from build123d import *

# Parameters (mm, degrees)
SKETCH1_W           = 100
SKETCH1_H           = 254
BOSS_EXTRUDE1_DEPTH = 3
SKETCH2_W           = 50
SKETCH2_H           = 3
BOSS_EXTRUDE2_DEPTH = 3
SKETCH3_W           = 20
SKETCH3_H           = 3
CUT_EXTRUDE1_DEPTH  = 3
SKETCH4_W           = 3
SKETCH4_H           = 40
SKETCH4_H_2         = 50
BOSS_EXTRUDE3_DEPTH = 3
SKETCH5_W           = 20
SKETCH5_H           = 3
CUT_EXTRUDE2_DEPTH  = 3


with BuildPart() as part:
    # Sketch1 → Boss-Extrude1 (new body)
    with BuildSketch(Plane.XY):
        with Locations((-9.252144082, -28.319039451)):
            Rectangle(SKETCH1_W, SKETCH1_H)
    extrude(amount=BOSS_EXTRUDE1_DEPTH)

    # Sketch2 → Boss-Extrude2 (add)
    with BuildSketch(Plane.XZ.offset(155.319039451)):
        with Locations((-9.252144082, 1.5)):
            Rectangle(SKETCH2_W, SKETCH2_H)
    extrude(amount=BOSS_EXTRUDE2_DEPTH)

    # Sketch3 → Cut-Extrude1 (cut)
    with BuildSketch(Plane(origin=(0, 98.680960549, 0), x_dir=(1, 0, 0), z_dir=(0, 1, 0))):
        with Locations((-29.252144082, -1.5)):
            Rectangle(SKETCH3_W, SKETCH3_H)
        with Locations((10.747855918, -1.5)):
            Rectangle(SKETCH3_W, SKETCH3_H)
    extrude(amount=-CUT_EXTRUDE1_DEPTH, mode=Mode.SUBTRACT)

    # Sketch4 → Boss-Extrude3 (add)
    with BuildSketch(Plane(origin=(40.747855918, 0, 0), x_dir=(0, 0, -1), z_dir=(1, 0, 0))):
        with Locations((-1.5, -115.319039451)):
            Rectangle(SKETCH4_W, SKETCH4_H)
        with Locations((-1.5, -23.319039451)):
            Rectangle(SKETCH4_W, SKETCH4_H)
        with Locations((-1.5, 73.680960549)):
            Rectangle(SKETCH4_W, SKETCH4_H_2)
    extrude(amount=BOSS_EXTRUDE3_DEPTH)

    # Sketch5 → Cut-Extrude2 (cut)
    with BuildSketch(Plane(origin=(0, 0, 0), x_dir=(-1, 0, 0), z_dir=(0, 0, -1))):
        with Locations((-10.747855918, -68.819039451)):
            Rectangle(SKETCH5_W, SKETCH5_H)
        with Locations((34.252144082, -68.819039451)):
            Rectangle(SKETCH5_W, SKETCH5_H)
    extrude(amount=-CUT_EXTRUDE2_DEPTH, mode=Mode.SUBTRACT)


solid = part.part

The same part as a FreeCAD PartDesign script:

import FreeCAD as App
import Part
import Sketcher
from FreeCAD import Vector

doc = App.newDocument("Part")
body = doc.addObject("PartDesign::Body", "Body")

# Sketch on XY plane
sketch1 = body.newObject("Sketcher::SketchObject", "Sketch")
sketch1.AttachmentSupport = (doc.getObject("XY_Plane"), [""])
sketch1.MapMode = "FlatFace"
sketch1.addGeometry(Part.LineSegment(Vector(-59.252144, 98.680961, 0), Vector(-59.252144, -155.319039, 0)), False)
sketch1.addGeometry(Part.LineSegment(Vector(-59.252144, -155.319039, 0), Vector(40.747856, -155.319039, 0)), False)
sketch1.addGeometry(Part.LineSegment(Vector(40.747856, -155.319039, 0), Vector(40.747856, 98.680961, 0)), False)
sketch1.addGeometry(Part.LineSegment(Vector(40.747856, 98.680961, 0), Vector(-59.252144, 98.680961, 0)), False)
sketch1.addConstraint(Sketcher.Constraint("Coincident", 0, 2, 1, 1))
sketch1.addConstraint(Sketcher.Constraint("Coincident", 1, 2, 2, 1))
sketch1.addConstraint(Sketcher.Constraint("Coincident", 2, 2, 3, 1))
sketch1.addConstraint(Sketcher.Constraint("Coincident", 3, 2, 0, 1))
sketch1.addConstraint(Sketcher.Constraint("Vertical", 0))
sketch1.addConstraint(Sketcher.Constraint("Horizontal", 1))
sketch1.addConstraint(Sketcher.Constraint("Vertical", 2))
sketch1.addConstraint(Sketcher.Constraint("Horizontal", 3))
sketch1.addConstraint(Sketcher.Constraint("DistanceX", 1, 1, 1, 2, 100.0))
sketch1.addConstraint(Sketcher.Constraint("DistanceY", 0, 2, 0, 1, 254.0))
sketch1.addConstraint(Sketcher.Constraint("DistanceY", 0, 2, -1, 1, 155.319039))
sketch1.addConstraint(Sketcher.Constraint("DistanceX", 0, 2, -1, 1, 59.252144))
pad1 = body.newObject("PartDesign::Pad", "Pad")
pad1.Profile = sketch1
pad1.Length = 3

# Sketch on XZ plane
sketch2 = body.newObject("Sketcher::SketchObject", "Sketch001")
sketch2.AttachmentSupport = (doc.getObject("XZ_Plane"), [""])
sketch2.MapMode = "FlatFace"
sketch2.AttachmentOffset = App.Placement(Vector(0, 0, 155.319039), App.Rotation())
sketch2.addGeometry(Part.LineSegment(Vector(-34.252144, 3, 0), Vector(-34.252144, 0, 0)), False)
sketch2.addGeometry(Part.LineSegment(Vector(-34.252144, 0, 0), Vector(15.747856, 0, 0)), False)
sketch2.addGeometry(Part.LineSegment(Vector(15.747856, 0, 0), Vector(15.747856, 3, 0)), False)
sketch2.addGeometry(Part.LineSegment(Vector(15.747856, 3, 0), Vector(-34.252144, 3, 0)), False)
sketch2.addConstraint(Sketcher.Constraint("Coincident", 0, 2, 1, 1))
sketch2.addConstraint(Sketcher.Constraint("Coincident", 1, 2, 2, 1))
sketch2.addConstraint(Sketcher.Constraint("Coincident", 2, 2, 3, 1))
sketch2.addConstraint(Sketcher.Constraint("Coincident", 3, 2, 0, 1))
sketch2.addConstraint(Sketcher.Constraint("Vertical", 0))
sketch2.addConstraint(Sketcher.Constraint("Horizontal", 1))
sketch2.addConstraint(Sketcher.Constraint("Vertical", 2))
sketch2.addConstraint(Sketcher.Constraint("Horizontal", 3))
sketch2.addConstraint(Sketcher.Constraint("PointOnObject", 0, 2, -1))
sketch2.addConstraint(Sketcher.Constraint("DistanceX", 1, 1, 1, 2, 50.0))
sketch2.addConstraint(Sketcher.Constraint("DistanceY", 0, 2, 0, 1, 3.0))
sketch2.addConstraint(Sketcher.Constraint("DistanceX", 0, 2, -1, 1, 34.252144))
pad2 = body.newObject("PartDesign::Pad", "Pad001")
pad2.Profile = sketch2
pad2.Length = 3

# Sketch on XZ plane
sketch3 = body.newObject("Sketcher::SketchObject", "Sketch002")
sketch3.AttachmentSupport = (doc.getObject("XZ_Plane"), [""])
sketch3.MapMode = "FlatFace"
sketch3.AttachmentOffset = App.Placement(Vector(0, 0, -98.680961), App.Rotation())
sketch3.addGeometry(Part.LineSegment(Vector(-39.252144, 0, 0), Vector(-39.252144, 3, 0)), False)
sketch3.addGeometry(Part.LineSegment(Vector(-39.252144, 3, 0), Vector(-19.252144, 3, 0)), False)
sketch3.addGeometry(Part.LineSegment(Vector(-19.252144, 3, 0), Vector(-19.252144, 0, 0)), False)
sketch3.addGeometry(Part.LineSegment(Vector(-19.252144, 0, 0), Vector(-39.252144, 0, 0)), False)
sketch3.addGeometry(Part.LineSegment(Vector(0.747856, 0, 0), Vector(0.747856, 3, 0)), False)
sketch3.addGeometry(Part.LineSegment(Vector(0.747856, 3, 0), Vector(20.747856, 3, 0)), False)
sketch3.addGeometry(Part.LineSegment(Vector(20.747856, 3, 0), Vector(20.747856, 0, 0)), False)
sketch3.addGeometry(Part.LineSegment(Vector(20.747856, 0, 0), Vector(0.747856, 0, 0)), False)
sketch3.addConstraint(Sketcher.Constraint("Coincident", 0, 2, 1, 1))
sketch3.addConstraint(Sketcher.Constraint("Coincident", 1, 2, 2, 1))
sketch3.addConstraint(Sketcher.Constraint("Coincident", 2, 2, 3, 1))
sketch3.addConstraint(Sketcher.Constraint("Coincident", 3, 2, 0, 1))
sketch3.addConstraint(Sketcher.Constraint("Coincident", 4, 2, 5, 1))
sketch3.addConstraint(Sketcher.Constraint("Coincident", 5, 2, 6, 1))
sketch3.addConstraint(Sketcher.Constraint("Coincident", 6, 2, 7, 1))
sketch3.addConstraint(Sketcher.Constraint("Coincident", 7, 2, 4, 1))
sketch3.addConstraint(Sketcher.Constraint("Vertical", 0))
sketch3.addConstraint(Sketcher.Constraint("Horizontal", 1))
sketch3.addConstraint(Sketcher.Constraint("Vertical", 2))
sketch3.addConstraint(Sketcher.Constraint("Horizontal", 3))
sketch3.addConstraint(Sketcher.Constraint("Vertical", 4))
sketch3.addConstraint(Sketcher.Constraint("Horizontal", 5))
sketch3.addConstraint(Sketcher.Constraint("Vertical", 6))
sketch3.addConstraint(Sketcher.Constraint("Horizontal", 7))
sketch3.addConstraint(Sketcher.Constraint("PointOnObject", 2, 2, -1))
sketch3.addConstraint(Sketcher.Constraint("PointOnObject", 6, 2, -1))
sketch3.addConstraint(Sketcher.Constraint("Horizontal", 1, 2, 4, 2))
sketch3.addConstraint(Sketcher.Constraint("Equal", 3, 5))
sketch3.addConstraint(Sketcher.Constraint("DistanceX", 1, 1, 1, 2, 20.0))
sketch3.addConstraint(Sketcher.Constraint("DistanceY", 0, 1, 0, 2, 3.0))
sketch3.addConstraint(Sketcher.Constraint("DistanceX", 1, 2, 4, 2, 20.0))
sketch3.addConstraint(Sketcher.Constraint("DistanceX", 0, 2, -1, 1, 39.252144))
pocket1 = body.newObject("PartDesign::Pocket", "Pocket")
pocket1.Profile = sketch3
pocket1.Length = 3
pocket1.Reversed = True

# Sketch on YZ plane
sketch4 = body.newObject("Sketcher::SketchObject", "Sketch003")
sketch4.AttachmentSupport = (doc.getObject("YZ_Plane"), [""])
sketch4.MapMode = "FlatFace"
sketch4.AttachmentOffset = App.Placement(Vector(0, 0, 40.747856), App.Rotation())
sketch4.addGeometry(Part.LineSegment(Vector(-95.319039, 3, 0), Vector(-135.319039, 3, 0)), False)
sketch4.addGeometry(Part.LineSegment(Vector(-135.319039, 3, 0), Vector(-135.319039, 0, 0)), False)
sketch4.addGeometry(Part.LineSegment(Vector(-135.319039, 0, 0), Vector(-95.319039, 0, 0)), False)
sketch4.addGeometry(Part.LineSegment(Vector(-95.319039, 0, 0), Vector(-95.319039, 3, 0)), False)
sketch4.addGeometry(Part.LineSegment(Vector(-3.319039, 3, 0), Vector(-43.319039, 3, 0)), False)
sketch4.addGeometry(Part.LineSegment(Vector(-43.319039, 3, 0), Vector(-43.319039, 0, 0)), False)
sketch4.addGeometry(Part.LineSegment(Vector(-43.319039, 0, 0), Vector(-3.319039, 0, 0)), False)
sketch4.addGeometry(Part.LineSegment(Vector(-3.319039, 0, 0), Vector(-3.319039, 3, 0)), False)
sketch4.addGeometry(Part.LineSegment(Vector(98.680961, 3, 0), Vector(48.680961, 3, 0)), False)
sketch4.addGeometry(Part.LineSegment(Vector(48.680961, 3, 0), Vector(48.680961, 0, 0)), False)
sketch4.addGeometry(Part.LineSegment(Vector(48.680961, 0, 0), Vector(98.680961, 0, 0)), False)
sketch4.addGeometry(Part.LineSegment(Vector(98.680961, 0, 0), Vector(98.680961, 3, 0)), False)
sketch4.addConstraint(Sketcher.Constraint("Coincident", 0, 2, 1, 1))
sketch4.addConstraint(Sketcher.Constraint("Coincident", 1, 2, 2, 1))
sketch4.addConstraint(Sketcher.Constraint("Coincident", 2, 2, 3, 1))
sketch4.addConstraint(Sketcher.Constraint("Coincident", 3, 2, 0, 1))
sketch4.addConstraint(Sketcher.Constraint("Coincident", 4, 2, 5, 1))
sketch4.addConstraint(Sketcher.Constraint("Coincident", 5, 2, 6, 1))
sketch4.addConstraint(Sketcher.Constraint("Coincident", 6, 2, 7, 1))
sketch4.addConstraint(Sketcher.Constraint("Coincident", 7, 2, 4, 1))
sketch4.addConstraint(Sketcher.Constraint("Coincident", 8, 2, 9, 1))
sketch4.addConstraint(Sketcher.Constraint("Coincident", 9, 2, 10, 1))
sketch4.addConstraint(Sketcher.Constraint("Coincident", 10, 2, 11, 1))
sketch4.addConstraint(Sketcher.Constraint("Coincident", 11, 2, 8, 1))
sketch4.addConstraint(Sketcher.Constraint("Horizontal", 0))
sketch4.addConstraint(Sketcher.Constraint("Vertical", 1))
sketch4.addConstraint(Sketcher.Constraint("Horizontal", 2))
sketch4.addConstraint(Sketcher.Constraint("Vertical", 3))
sketch4.addConstraint(Sketcher.Constraint("Horizontal", 4))
sketch4.addConstraint(Sketcher.Constraint("Vertical", 5))
sketch4.addConstraint(Sketcher.Constraint("Horizontal", 6))
sketch4.addConstraint(Sketcher.Constraint("Vertical", 7))
sketch4.addConstraint(Sketcher.Constraint("Horizontal", 8))
sketch4.addConstraint(Sketcher.Constraint("Vertical", 9))
sketch4.addConstraint(Sketcher.Constraint("Horizontal", 10))
sketch4.addConstraint(Sketcher.Constraint("Vertical", 11))
sketch4.addConstraint(Sketcher.Constraint("PointOnObject", 1, 2, -1))
sketch4.addConstraint(Sketcher.Constraint("PointOnObject", 5, 2, -1))
sketch4.addConstraint(Sketcher.Constraint("PointOnObject", 9, 2, -1))
sketch4.addConstraint(Sketcher.Constraint("Horizontal", 3, 2, 4, 2))
sketch4.addConstraint(Sketcher.Constraint("Horizontal", 7, 2, 8, 2))
sketch4.addConstraint(Sketcher.Constraint("Equal", 2, 4))
sketch4.addConstraint(Sketcher.Constraint("DistanceX", 0, 2, 0, 1, 40.0))
sketch4.addConstraint(Sketcher.Constraint("DistanceX", 8, 2, 8, 1, 50.0))
sketch4.addConstraint(Sketcher.Constraint("DistanceY", 1, 2, 1, 1, 3.0))
sketch4.addConstraint(Sketcher.Constraint("DistanceX", 3, 2, 4, 2, 52.0))
sketch4.addConstraint(Sketcher.Constraint("DistanceX", 7, 2, 8, 2, 52.0))
sketch4.addConstraint(Sketcher.Constraint("DistanceX", 0, 2, -1, 1, 135.319039))
pad3 = body.newObject("PartDesign::Pad", "Pad002")
pad3.Profile = sketch4
pad3.Length = 3

# Sketch on XY plane
sketch5 = body.newObject("Sketcher::SketchObject", "Sketch004")
sketch5.AttachmentSupport = (doc.getObject("XY_Plane"), [""])
sketch5.MapMode = "FlatFace"
sketch5.addGeometry(Part.LineSegment(Vector(20.747856, -67.319039, 0), Vector(20.747856, -70.319039, 0)), False)
sketch5.addGeometry(Part.LineSegment(Vector(20.747856, -70.319039, 0), Vector(0.747856, -70.319039, 0)), False)
sketch5.addGeometry(Part.LineSegment(Vector(0.747856, -70.319039, 0), Vector(0.747856, -67.319039, 0)), False)
sketch5.addGeometry(Part.LineSegment(Vector(0.747856, -67.319039, 0), Vector(20.747856, -67.319039, 0)), False)
sketch5.addGeometry(Part.LineSegment(Vector(-24.252144, -67.319039, 0), Vector(-24.252144, -70.319039, 0)), False)
sketch5.addGeometry(Part.LineSegment(Vector(-24.252144, -70.319039, 0), Vector(-44.252144, -70.319039, 0)), False)
sketch5.addGeometry(Part.LineSegment(Vector(-44.252144, -70.319039, 0), Vector(-44.252144, -67.319039, 0)), False)
sketch5.addGeometry(Part.LineSegment(Vector(-44.252144, -67.319039, 0), Vector(-24.252144, -67.319039, 0)), False)
sketch5.addConstraint(Sketcher.Constraint("Coincident", 0, 2, 1, 1))
sketch5.addConstraint(Sketcher.Constraint("Coincident", 1, 2, 2, 1))
sketch5.addConstraint(Sketcher.Constraint("Coincident", 2, 2, 3, 1))
sketch5.addConstraint(Sketcher.Constraint("Coincident", 3, 2, 0, 1))
sketch5.addConstraint(Sketcher.Constraint("Coincident", 4, 2, 5, 1))
sketch5.addConstraint(Sketcher.Constraint("Coincident", 5, 2, 6, 1))
sketch5.addConstraint(Sketcher.Constraint("Coincident", 6, 2, 7, 1))
sketch5.addConstraint(Sketcher.Constraint("Coincident", 7, 2, 4, 1))
sketch5.addConstraint(Sketcher.Constraint("Vertical", 0))
sketch5.addConstraint(Sketcher.Constraint("Horizontal", 1))
sketch5.addConstraint(Sketcher.Constraint("Vertical", 2))
sketch5.addConstraint(Sketcher.Constraint("Horizontal", 3))
sketch5.addConstraint(Sketcher.Constraint("Vertical", 4))
sketch5.addConstraint(Sketcher.Constraint("Horizontal", 5))
sketch5.addConstraint(Sketcher.Constraint("Vertical", 6))
sketch5.addConstraint(Sketcher.Constraint("Horizontal", 7))
sketch5.addConstraint(Sketcher.Constraint("Horizontal", 1, 2, 4, 2))
sketch5.addConstraint(Sketcher.Constraint("Horizontal", 3, 2, 6, 2))
sketch5.addConstraint(Sketcher.Constraint("Equal", 3, 5))
sketch5.addConstraint(Sketcher.Constraint("DistanceX", 1, 2, 1, 1, 20.0))
sketch5.addConstraint(Sketcher.Constraint("DistanceY", 0, 2, 0, 1, 3.0))
sketch5.addConstraint(Sketcher.Constraint("DistanceX", 4, 2, 1, 2, 25.0))
sketch5.addConstraint(Sketcher.Constraint("DistanceY", 0, 2, -1, 1, 70.319039))
sketch5.addConstraint(Sketcher.Constraint("DistanceX", -1, 1, 0, 2, 20.747856))
pocket2 = body.newObject("PartDesign::Pocket", "Pocket001")
pocket2.Profile = sketch5
pocket2.Length = 3
pocket2.Reversed = True

doc.recompute()
